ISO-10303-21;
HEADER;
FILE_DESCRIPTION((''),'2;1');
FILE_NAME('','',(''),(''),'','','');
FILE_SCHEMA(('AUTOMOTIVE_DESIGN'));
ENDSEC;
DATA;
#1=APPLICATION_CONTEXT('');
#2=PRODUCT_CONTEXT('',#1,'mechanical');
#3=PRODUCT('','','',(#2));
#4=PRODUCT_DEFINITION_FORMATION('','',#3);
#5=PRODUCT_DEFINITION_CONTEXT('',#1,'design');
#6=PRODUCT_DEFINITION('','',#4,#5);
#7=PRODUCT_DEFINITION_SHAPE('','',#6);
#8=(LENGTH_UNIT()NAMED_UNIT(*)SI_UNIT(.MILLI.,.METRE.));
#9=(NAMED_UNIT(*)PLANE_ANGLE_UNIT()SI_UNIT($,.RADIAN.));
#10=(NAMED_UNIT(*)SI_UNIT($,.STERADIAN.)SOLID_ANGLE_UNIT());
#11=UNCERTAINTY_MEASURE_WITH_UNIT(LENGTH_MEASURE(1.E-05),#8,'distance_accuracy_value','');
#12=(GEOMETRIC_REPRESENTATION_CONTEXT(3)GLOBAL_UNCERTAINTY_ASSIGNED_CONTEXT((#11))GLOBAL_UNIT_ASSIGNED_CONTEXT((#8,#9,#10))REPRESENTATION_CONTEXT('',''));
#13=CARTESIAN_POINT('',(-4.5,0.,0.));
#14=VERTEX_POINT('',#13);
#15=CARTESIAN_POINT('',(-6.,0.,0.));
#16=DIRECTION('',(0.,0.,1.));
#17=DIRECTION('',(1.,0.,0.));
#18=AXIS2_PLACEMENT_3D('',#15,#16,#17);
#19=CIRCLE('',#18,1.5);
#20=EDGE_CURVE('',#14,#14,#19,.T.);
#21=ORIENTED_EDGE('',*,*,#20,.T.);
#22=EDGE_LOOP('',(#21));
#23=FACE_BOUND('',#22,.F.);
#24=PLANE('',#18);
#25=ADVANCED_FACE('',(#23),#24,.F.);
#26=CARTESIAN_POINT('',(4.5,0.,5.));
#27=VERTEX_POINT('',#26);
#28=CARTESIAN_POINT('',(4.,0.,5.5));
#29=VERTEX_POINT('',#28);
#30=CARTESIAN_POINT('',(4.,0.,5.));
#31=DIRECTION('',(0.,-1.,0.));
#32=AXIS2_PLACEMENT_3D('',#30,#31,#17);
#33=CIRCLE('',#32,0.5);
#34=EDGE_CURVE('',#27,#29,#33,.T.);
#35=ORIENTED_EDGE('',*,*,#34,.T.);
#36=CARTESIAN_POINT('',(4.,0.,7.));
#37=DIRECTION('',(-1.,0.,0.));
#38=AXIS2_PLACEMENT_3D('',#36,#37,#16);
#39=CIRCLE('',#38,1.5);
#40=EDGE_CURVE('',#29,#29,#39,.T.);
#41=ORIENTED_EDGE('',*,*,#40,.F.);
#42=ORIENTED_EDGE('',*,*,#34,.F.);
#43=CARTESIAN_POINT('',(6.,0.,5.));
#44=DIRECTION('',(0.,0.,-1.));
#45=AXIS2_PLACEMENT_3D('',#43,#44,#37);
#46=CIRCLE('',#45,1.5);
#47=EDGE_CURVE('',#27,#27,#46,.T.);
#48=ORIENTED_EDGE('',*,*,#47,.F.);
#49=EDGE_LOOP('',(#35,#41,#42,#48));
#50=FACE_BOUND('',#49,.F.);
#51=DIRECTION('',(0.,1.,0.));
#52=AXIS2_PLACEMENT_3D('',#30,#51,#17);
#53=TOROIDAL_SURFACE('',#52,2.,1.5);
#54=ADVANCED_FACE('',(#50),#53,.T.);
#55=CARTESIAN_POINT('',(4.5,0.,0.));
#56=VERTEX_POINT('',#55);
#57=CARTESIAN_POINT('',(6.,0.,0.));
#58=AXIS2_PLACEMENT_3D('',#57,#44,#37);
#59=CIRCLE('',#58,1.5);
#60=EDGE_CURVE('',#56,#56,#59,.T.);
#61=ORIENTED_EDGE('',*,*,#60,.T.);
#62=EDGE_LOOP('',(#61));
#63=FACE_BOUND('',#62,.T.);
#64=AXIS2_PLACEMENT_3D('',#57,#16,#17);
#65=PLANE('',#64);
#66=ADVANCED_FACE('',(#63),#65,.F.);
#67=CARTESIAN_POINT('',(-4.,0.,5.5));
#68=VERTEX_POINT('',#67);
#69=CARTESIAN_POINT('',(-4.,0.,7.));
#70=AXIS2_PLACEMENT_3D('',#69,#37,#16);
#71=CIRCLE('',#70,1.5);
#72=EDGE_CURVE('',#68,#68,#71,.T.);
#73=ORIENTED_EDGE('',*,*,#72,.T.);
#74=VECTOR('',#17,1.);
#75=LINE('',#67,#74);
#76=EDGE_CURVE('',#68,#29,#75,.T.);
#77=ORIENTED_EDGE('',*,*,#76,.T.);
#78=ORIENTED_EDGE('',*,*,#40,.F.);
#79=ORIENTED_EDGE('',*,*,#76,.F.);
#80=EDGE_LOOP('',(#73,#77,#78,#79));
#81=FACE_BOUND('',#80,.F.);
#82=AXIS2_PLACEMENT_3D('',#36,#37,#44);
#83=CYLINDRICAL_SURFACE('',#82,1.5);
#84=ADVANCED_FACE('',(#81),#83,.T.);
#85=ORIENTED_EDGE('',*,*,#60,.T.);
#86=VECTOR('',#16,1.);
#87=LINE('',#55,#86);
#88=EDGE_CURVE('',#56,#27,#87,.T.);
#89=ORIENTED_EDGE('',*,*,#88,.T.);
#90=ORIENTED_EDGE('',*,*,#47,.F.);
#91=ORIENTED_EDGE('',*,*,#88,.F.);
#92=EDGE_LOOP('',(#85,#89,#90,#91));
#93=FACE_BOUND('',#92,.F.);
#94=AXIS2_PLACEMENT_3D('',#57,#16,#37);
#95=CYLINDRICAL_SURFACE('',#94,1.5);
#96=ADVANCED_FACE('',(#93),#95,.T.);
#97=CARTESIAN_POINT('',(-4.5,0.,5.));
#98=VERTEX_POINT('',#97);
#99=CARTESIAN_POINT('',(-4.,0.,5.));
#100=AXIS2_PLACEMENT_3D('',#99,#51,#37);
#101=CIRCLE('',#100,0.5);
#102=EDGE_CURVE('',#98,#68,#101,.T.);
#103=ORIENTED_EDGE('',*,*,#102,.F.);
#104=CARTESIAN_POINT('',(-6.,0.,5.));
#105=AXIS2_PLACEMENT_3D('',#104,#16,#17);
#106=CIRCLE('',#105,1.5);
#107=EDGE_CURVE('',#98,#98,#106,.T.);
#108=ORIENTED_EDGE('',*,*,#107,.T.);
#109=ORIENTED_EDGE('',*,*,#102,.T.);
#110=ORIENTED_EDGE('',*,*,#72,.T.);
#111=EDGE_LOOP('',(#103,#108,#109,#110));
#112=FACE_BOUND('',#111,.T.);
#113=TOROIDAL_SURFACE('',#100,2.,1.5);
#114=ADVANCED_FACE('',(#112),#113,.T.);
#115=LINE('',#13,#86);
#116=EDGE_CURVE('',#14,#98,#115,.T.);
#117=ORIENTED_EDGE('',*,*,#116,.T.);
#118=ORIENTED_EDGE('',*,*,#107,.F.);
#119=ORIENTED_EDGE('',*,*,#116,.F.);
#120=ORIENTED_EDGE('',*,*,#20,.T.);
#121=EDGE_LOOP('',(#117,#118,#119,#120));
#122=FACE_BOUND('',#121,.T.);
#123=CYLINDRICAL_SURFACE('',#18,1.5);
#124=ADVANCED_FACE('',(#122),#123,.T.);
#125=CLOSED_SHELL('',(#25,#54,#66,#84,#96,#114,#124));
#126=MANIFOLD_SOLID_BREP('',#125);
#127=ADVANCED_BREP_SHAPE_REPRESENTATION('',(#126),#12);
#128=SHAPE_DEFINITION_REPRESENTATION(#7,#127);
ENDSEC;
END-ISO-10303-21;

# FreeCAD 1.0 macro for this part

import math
import FreeCAD as App
import Part
import Sketcher
Q = App.Units.Quantity

doc = App.newDocument("Part")
body = doc.addObject("PartDesign::Body", "Body")

# Sketch on XY plane
sketch1 = doc.addObject("Sketcher::SketchObject", "Sketch")
body.addObject(sketch1)
sketch1.AttachmentSupport = (doc.XY_Plane, [""])
sketch1.MapMode = "FlatFace"
sketch1.addGeometry(Part.Circle(App.Vector(-6, 0, 0), App.Vector(0, 0, 1), 1.5), False)
sketch1.addConstraint([
    Sketcher.Constraint("PointOnObject", 0, 3, -1),
    Sketcher.Constraint("Diameter", 0, Q("3 mm")),
    Sketcher.Constraint("DistanceX", 0, 3, -1, 1, Q("6 mm")),
])

# Sketch on XZ plane
sketch2 = doc.addObject("Sketcher::SketchObject", "Sketch001")
body.addObject(sketch2)
sketch2.AttachmentSupport = (doc.XZ_Plane, [""])
sketch2.MapMode = "FlatFace"
sketch2.addGeometry([
    Part.LineSegment(App.Vector(-6, 0, 0), App.Vector(-6, 5, 0)),
    Part.ArcOfCircle(Part.Circle(App.Vector(-4, 5, 0), App.Vector(0, 0, 1), 2), math.radians(90), math.radians(180)),
    Part.LineSegment(App.Vector(-4, 7, 0), App.Vector(0, 7, 0)),
], False)
sketch2.addConstraint([
    Sketcher.Constraint("Tangent", 0, 2, 1, 2),
    Sketcher.Constraint("Tangent", 1, 1, 2, 1),
    Sketcher.Constraint("Vertical", 0),
    Sketcher.Constraint("Horizontal", 2),
    Sketcher.Constraint("PointOnObject", 0, 1, -1),
    Sketcher.Constraint("PointOnObject", 2, 2, -2),
    Sketcher.Constraint("Radius", 1, Q("2 mm")),
    Sketcher.Constraint("DistanceX", 2, 1, 2, 2, Q("4 mm")),
    Sketcher.Constraint("DistanceY", 0, 1, 0, 2, Q("5 mm")),
])
doc.recompute()

additivepipe = doc.addObject("PartDesign::AdditivePipe", "AdditivePipe")
body.addObject(additivepipe)
additivepipe.Profile = sketch1
additivepipe.Spine = (sketch2, ["Edge1", "Edge2", "Edge3"])
body2 = doc.addObject("PartDesign::Body", "Body001")
doc.recompute()

body2.BaseFeature = body
doc.recompute()

mirroring = doc.addObject("Part::Mirroring", "Mirroring")
mirroring.Source = body
mirroring.Base = App.Vector(0, 0, 0)
mirroring.Normal = App.Vector(1, 0, 0)
body3 = doc.addObject("PartDesign::Body", "Body002")
body3.BaseFeature = mirroring
boolean = doc.addObject("PartDesign::Boolean", "Boolean")
body2.addObject(boolean)
boolean.Type = "Fuse"
boolean.addObjects([body3])
doc.recompute()
mirroring.Visibility = False

doc.recompute()
